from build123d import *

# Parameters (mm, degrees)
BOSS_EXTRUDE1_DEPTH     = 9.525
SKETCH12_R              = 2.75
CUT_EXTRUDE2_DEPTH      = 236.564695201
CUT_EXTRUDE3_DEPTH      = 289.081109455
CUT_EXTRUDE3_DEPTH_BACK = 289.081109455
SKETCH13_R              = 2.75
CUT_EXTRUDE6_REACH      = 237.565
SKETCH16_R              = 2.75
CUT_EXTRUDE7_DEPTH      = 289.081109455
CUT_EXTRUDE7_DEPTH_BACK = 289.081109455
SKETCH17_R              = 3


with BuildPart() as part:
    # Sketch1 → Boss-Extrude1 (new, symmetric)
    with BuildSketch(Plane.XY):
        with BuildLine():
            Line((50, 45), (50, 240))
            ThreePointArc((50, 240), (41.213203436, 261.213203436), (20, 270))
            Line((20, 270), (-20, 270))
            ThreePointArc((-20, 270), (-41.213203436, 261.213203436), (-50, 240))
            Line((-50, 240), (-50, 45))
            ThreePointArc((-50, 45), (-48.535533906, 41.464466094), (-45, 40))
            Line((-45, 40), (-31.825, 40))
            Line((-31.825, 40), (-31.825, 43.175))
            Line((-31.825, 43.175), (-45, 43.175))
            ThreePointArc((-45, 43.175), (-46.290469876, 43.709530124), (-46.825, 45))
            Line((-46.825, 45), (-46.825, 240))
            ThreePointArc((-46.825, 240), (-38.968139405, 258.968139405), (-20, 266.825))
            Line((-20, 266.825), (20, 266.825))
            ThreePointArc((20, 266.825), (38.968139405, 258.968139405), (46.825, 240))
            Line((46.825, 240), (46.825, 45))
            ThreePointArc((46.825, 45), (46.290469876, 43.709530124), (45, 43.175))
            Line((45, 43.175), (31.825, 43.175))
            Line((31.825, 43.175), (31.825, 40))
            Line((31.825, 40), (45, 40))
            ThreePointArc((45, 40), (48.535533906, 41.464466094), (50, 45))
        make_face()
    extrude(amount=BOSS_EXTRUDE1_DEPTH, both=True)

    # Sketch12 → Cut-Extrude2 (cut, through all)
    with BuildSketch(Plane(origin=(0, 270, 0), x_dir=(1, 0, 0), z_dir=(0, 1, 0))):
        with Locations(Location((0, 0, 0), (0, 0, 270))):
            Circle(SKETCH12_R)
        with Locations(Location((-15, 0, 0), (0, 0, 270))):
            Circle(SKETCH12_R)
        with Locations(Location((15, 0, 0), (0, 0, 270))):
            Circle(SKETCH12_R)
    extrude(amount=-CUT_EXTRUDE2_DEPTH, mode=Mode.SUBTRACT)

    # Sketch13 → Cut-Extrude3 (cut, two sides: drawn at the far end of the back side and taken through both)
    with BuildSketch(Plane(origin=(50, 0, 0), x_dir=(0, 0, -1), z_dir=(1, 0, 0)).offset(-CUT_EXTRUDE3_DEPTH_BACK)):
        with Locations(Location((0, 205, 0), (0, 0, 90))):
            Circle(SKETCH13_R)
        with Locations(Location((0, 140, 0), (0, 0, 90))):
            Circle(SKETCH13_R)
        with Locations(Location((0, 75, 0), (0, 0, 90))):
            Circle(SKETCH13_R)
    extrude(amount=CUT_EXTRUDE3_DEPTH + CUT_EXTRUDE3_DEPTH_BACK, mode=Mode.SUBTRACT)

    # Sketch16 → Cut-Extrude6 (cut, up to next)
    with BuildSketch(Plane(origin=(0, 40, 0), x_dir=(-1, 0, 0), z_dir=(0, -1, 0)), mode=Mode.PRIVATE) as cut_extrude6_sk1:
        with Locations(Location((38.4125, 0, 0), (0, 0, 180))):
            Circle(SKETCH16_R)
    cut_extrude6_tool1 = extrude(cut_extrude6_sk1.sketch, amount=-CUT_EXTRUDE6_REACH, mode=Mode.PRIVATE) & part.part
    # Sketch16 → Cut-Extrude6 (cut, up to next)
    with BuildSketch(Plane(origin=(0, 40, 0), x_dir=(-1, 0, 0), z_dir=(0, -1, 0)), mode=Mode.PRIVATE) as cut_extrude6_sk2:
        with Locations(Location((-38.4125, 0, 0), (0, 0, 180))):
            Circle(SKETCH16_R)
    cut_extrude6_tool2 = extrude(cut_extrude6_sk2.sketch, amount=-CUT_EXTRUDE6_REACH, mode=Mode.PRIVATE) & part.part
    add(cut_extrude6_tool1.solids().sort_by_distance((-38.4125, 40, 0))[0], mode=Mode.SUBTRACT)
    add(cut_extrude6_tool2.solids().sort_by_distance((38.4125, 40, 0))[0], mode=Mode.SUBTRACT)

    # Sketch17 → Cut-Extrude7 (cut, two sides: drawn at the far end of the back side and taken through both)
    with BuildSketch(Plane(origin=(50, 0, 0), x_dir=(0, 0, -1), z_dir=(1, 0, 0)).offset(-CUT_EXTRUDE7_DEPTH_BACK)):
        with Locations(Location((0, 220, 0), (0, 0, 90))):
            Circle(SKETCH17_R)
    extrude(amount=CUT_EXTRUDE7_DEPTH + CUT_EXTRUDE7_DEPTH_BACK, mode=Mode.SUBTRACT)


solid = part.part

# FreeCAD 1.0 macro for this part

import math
import FreeCAD as App
import Part
import Sketcher
Q = App.Units.Quantity

doc = App.newDocument("Part")
body = doc.addObject("PartDesign::Body", "Body")

# Sketch on XY plane
sketch1 = body.newObject("Sketcher::SketchObject", "Sketch")
sketch1.AttachmentSupport = (doc.getObject("XY_Plane"), [""])
sketch1.MapMode = "FlatFace"
sketch1.addGeometry([
    Part.LineSegment(App.Vector(50, 45, 0), App.Vector(50, 240, 0)),  # 0
    Part.ArcOfCircle(Part.Circle(App.Vector(20, 240, 0), App.Vector(0, 0, 1), 30), math.radians(0), math.radians(90)),  # 1
    Part.LineSegment(App.Vector(20, 270, 0), App.Vector(-20, 270, 0)),  # 2
    Part.ArcOfCircle(Part.Circle(App.Vector(-20, 240, 0), App.Vector(0, 0, 1), 30), math.radians(90), math.radians(180)),  # 3
    Part.LineSegment(App.Vector(-50, 240, 0), App.Vector(-50, 45, 0)),  # 4
    Part.ArcOfCircle(Part.Circle(App.Vector(-45, 45, 0), App.Vector(0, 0, 1), 5), math.radians(180), math.radians(270)),  # 5
    Part.LineSegment(App.Vector(-45, 40, 0), App.Vector(-31.825, 40, 0)),  # 6
    Part.LineSegment(App.Vector(-31.825, 40, 0), App.Vector(-31.825, 43.175, 0)),  # 7
    Part.LineSegment(App.Vector(-31.825, 43.175, 0), App.Vector(-45, 43.175, 0)),  # 8
    Part.ArcOfCircle(Part.Circle(App.Vector(-45, 45, 0), App.Vector(0, 0, 1), 1.825), math.radians(180), math.radians(270)),  # 9
    Part.LineSegment(App.Vector(-46.825, 45, 0), App.Vector(-46.825, 240, 0)),  # 10
    Part.ArcOfCircle(Part.Circle(App.Vector(-20, 240, 0), App.Vector(0, 0, 1), 26.825), math.radians(90), math.radians(180)),  # 11
    Part.LineSegment(App.Vector(-20, 266.825, 0), App.Vector(20, 266.825, 0)),  # 12
    Part.ArcOfCircle(Part.Circle(App.Vector(20, 240, 0), App.Vector(0, 0, 1), 26.825), math.radians(0), math.radians(90)),  # 13
    Part.LineSegment(App.Vector(46.825, 240, 0), App.Vector(46.825, 45, 0)),  # 14
    Part.ArcOfCircle(Part.Circle(App.Vector(45, 45, 0), App.Vector(0, 0, 1), 1.825), math.radians(-90), math.radians(0)),  # 15
    Part.LineSegment(App.Vector(45, 43.175, 0), App.Vector(31.825, 43.175, 0)),  # 16
    Part.LineSegment(App.Vector(31.825, 43.175, 0), App.Vector(31.825, 40, 0)),  # 17
    Part.LineSegment(App.Vector(31.825, 40, 0), App.Vector(45, 40, 0)),  # 18
    Part.ArcOfCircle(Part.Circle(App.Vector(45, 45, 0), App.Vector(0, 0, 1), 5), math.radians(-90), math.radians(0)),  # 19
], False)
sketch1.addConstraint([
    Sketcher.Constraint("Tangent", 0, 2, 1, 1),
    Sketcher.Constraint("Tangent", 1, 2, 2, 1),
    Sketcher.Constraint("Tangent", 2, 2, 3, 1),
    Sketcher.Constraint("Tangent", 3, 2, 4, 1),
    Sketcher.Constraint("Tangent", 4, 2, 5, 1),
    Sketcher.Constraint("Tangent", 5, 2, 6, 1),
    Sketcher.Constraint("Coincident", 6, 2, 7, 1),
    Sketcher.Constraint("Coincident", 7, 2, 8, 1),
    Sketcher.Constraint("Tangent", 8, 2, 9, 2),
    Sketcher.Constraint("Tangent", 9, 1, 10, 1),
    Sketcher.Constraint("Tangent", 10, 2, 11, 2),
    Sketcher.Constraint("Tangent", 11, 1, 12, 1),
    Sketcher.Constraint("Tangent", 12, 2, 13, 2),
    Sketcher.Constraint("Tangent", 13, 1, 14, 1),
    Sketcher.Constraint("Tangent", 14, 2, 15, 2),
    Sketcher.Constraint("Tangent", 15, 1, 16, 1),
    Sketcher.Constraint("Coincident", 16, 2, 17, 1),
    Sketcher.Constraint("Coincident", 17, 2, 18, 1),
    Sketcher.Constraint("Tangent", 18, 2, 19, 1),
    Sketcher.Constraint("Tangent", 19, 2, 0, 1),
    Sketcher.Constraint("Vertical", 0),
    Sketcher.Constraint("Horizontal", 2),
    Sketcher.Constraint("Vertical", 4),
    Sketcher.Constraint("Horizontal", 6),
    Sketcher.Constraint("Vertical", 7),
    Sketcher.Constraint("Horizontal", 8),
    Sketcher.Constraint("Vertical", 10),
    Sketcher.Constraint("Horizontal", 12),
    Sketcher.Constraint("Vertical", 14),
    Sketcher.Constraint("Horizontal", 16),
    Sketcher.Constraint("Vertical", 17),
    Sketcher.Constraint("Horizontal", 18),
    Sketcher.Constraint("Coincident", 9, 3, 5, 3),
    Sketcher.Constraint("Coincident", 11, 3, 3, 3),
    Sketcher.Constraint("Coincident", 13, 3, 1, 3),
    Sketcher.Constraint("Coincident", 19, 3, 15, 3),
    Sketcher.Constraint("Equal", 1, 3),
    Sketcher.Constraint("Equal", 9, 15),
    Sketcher.Constraint("Symmetric", 5, 3, 15, 3, -2),
    Sketcher.Constraint("Equal", 8, 16),
    Sketcher.Constraint("Radius", 1, Q("30 mm")),
    Sketcher.Constraint("Radius", 5, Q("5 mm")),
    Sketcher.Constraint("DistanceX", 2, 2, 2, 1, Q("40 mm")),
    Sketcher.Constraint("DistanceY", 0, 1, 0, 2, Q("195 mm")),
    Sketcher.Constraint("DistanceY", -1, 1, 1, 3, Q("240 mm")),
    Sketcher.Constraint("Radius", 9, Q("1.825 mm")),
    Sketcher.Constraint("DistanceX", 16, 2, 14, 2, Q("15 mm")),
])
pad1 = body.newObject("PartDesign::Pad", "Pad")
pad1.Profile = sketch1
pad1.Length = 19.05
pad1.Midplane = True

# Sketch on XZ plane
sketch2 = body.newObject("Sketcher::SketchObject", "Sketch001")
sketch2.AttachmentSupport = (doc.getObject("XZ_Plane"), [""])
sketch2.MapMode = "FlatFace"
sketch2.AttachmentOffset = App.Placement(App.Vector(0, 0, -270), App.Rotation())
sketch2.addGeometry([
    Part.Circle(App.Vector(0, 0, 0), App.Vector(0, 0, 1), 2.75),
    Part.Circle(App.Vector(-15, 0, 0), App.Vector(0, 0, 1), 2.75),
    Part.Circle(App.Vector(15, 0, 0), App.Vector(0, 0, 1), 2.75),
], False)
sketch2.addConstraint([
    Sketcher.Constraint("Coincident", 0, 3, -1, 1),
    Sketcher.Constraint("Equal", 0, 1),
    Sketcher.Constraint("Equal", 1, 2),
    Sketcher.Constraint("Symmetric", 1, 3, 2, 3, -1, 1),
    Sketcher.Constraint("PointOnObject", 1, 3, -1),
    Sketcher.Constraint("Diameter", 0, Q("5.5 mm")),
    Sketcher.Constraint("DistanceX", 1, 3, -1, 1, Q("15 mm")),
])
pocket1 = body.newObject("PartDesign::Pocket", "Pocket")
pocket1.Profile = sketch2
pocket1.Type = "ThroughAll"
pocket1.Reversed = True

# Sketch on YZ plane
sketch3 = body.newObject("Sketcher::SketchObject", "Sketch002")
sketch3.AttachmentSupport = (doc.getObject("YZ_Plane"), [""])
sketch3.MapMode = "FlatFace"
sketch3.AttachmentOffset = App.Placement(App.Vector(0, 0, 50), App.Rotation())
sketch3.addGeometry([
    Part.Circle(App.Vector(205, 0, 0), App.Vector(0, 0, 1), 2.75),
    Part.Circle(App.Vector(140, 0, 0), App.Vector(0, 0, 1), 2.75),
    Part.Circle(App.Vector(75, 0, 0), App.Vector(0, 0, 1), 2.75),
], False)
sketch3.addConstraint([
    Sketcher.Constraint("Equal", 0, 1),
    Sketcher.Constraint("Equal", 1, 2),
    Sketcher.Constraint("PointOnObject", 0, 3, -1),
    Sketcher.Constraint("PointOnObject", 1, 3, -1),
    Sketcher.Constraint("PointOnObject", 2, 3, -1),
    Sketcher.Constraint("Diameter", 0, Q("5.5 mm")),
    Sketcher.Constraint("DistanceX", -1, 1, 0, 3, Q("205 mm")),
    Sketcher.Constraint("DistanceX", -1, 1, 1, 3, Q("140 mm")),
    Sketcher.Constraint("DistanceX", -1, 1, 2, 3, Q("75 mm")),
])
pocket2 = body.newObject("PartDesign::Pocket", "Pocket001")
pocket2.Profile = sketch3
pocket2.Type = "ThroughAll"
pocket2.Midplane = True

# Sketch on XZ plane
sketch4 = body.newObject("Sketcher::SketchObject", "Sketch003")
sketch4.AttachmentSupport = (doc.getObject("XZ_Plane"), [""])
sketch4.MapMode = "FlatFace"
sketch4.AttachmentOffset = App.Placement(App.Vector(0, 0, -40), App.Rotation())
sketch4.addGeometry(Part.Circle(App.Vector(-38.4125, 0, 0), App.Vector(0, 0, 1), 2.75), False)
sketch4.addConstraint([
    Sketcher.Constraint("PointOnObject", 0, 3, -1),
    Sketcher.Constraint("Diameter", 0, Q("5.5 mm")),
    Sketcher.Constraint("DistanceX", 0, 3, -1, 1, Q("38.4125 mm")),
])
pocket3 = body.newObject("PartDesign::Pocket", "Pocket002")
pocket3.Profile = sketch4
pocket3.Type = "UpToFirst"

# Sketch on XZ plane
sketch5 = body.newObject("Sketcher::SketchObject", "Sketch004")
sketch5.AttachmentSupport = (doc.getObject("XZ_Plane"), [""])
sketch5.MapMode = "FlatFace"
sketch5.AttachmentOffset = App.Placement(App.Vector(0, 0, -40), App.Rotation())
sketch5.addGeometry(Part.Circle(App.Vector(38.4125, 0, 0), App.Vector(0, 0, 1), 2.75), False)
sketch5.addConstraint([
    Sketcher.Constraint("PointOnObject", 0, 3, -1),
    Sketcher.Constraint("Diameter", 0, Q("5.5 mm")),
    Sketcher.Constraint("DistanceX", -1, 1, 0, 3, Q("38.4125 mm")),
])
pocket4 = body.newObject("PartDesign::Pocket", "Pocket003")
pocket4.Profile = sketch5
pocket4.Type = "UpToFirst"

# Sketch on YZ plane
sketch6 = body.newObject("Sketcher::SketchObject", "Sketch005")
sketch6.AttachmentSupport = (doc.getObject("YZ_Plane"), [""])
sketch6.MapMode = "FlatFace"
sketch6.AttachmentOffset = App.Placement(App.Vector(0, 0, 50), App.Rotation())
sketch6.addGeometry(Part.Circle(App.Vector(220, 0, 0), App.Vector(0, 0, 1), 3), False)
sketch6.addConstraint([
    Sketcher.Constraint("PointOnObject", 0, 3, -1),
    Sketcher.Constraint("Diameter", 0, Q("6 mm")),
    Sketcher.Constraint("DistanceX", -1, 1, 0, 3, Q("220 mm")),
])
pocket5 = body.newObject("PartDesign::Pocket", "Pocket004")
pocket5.Profile = sketch6
pocket5.Type = "ThroughAll"
pocket5.Midplane = True

doc.recompute()
